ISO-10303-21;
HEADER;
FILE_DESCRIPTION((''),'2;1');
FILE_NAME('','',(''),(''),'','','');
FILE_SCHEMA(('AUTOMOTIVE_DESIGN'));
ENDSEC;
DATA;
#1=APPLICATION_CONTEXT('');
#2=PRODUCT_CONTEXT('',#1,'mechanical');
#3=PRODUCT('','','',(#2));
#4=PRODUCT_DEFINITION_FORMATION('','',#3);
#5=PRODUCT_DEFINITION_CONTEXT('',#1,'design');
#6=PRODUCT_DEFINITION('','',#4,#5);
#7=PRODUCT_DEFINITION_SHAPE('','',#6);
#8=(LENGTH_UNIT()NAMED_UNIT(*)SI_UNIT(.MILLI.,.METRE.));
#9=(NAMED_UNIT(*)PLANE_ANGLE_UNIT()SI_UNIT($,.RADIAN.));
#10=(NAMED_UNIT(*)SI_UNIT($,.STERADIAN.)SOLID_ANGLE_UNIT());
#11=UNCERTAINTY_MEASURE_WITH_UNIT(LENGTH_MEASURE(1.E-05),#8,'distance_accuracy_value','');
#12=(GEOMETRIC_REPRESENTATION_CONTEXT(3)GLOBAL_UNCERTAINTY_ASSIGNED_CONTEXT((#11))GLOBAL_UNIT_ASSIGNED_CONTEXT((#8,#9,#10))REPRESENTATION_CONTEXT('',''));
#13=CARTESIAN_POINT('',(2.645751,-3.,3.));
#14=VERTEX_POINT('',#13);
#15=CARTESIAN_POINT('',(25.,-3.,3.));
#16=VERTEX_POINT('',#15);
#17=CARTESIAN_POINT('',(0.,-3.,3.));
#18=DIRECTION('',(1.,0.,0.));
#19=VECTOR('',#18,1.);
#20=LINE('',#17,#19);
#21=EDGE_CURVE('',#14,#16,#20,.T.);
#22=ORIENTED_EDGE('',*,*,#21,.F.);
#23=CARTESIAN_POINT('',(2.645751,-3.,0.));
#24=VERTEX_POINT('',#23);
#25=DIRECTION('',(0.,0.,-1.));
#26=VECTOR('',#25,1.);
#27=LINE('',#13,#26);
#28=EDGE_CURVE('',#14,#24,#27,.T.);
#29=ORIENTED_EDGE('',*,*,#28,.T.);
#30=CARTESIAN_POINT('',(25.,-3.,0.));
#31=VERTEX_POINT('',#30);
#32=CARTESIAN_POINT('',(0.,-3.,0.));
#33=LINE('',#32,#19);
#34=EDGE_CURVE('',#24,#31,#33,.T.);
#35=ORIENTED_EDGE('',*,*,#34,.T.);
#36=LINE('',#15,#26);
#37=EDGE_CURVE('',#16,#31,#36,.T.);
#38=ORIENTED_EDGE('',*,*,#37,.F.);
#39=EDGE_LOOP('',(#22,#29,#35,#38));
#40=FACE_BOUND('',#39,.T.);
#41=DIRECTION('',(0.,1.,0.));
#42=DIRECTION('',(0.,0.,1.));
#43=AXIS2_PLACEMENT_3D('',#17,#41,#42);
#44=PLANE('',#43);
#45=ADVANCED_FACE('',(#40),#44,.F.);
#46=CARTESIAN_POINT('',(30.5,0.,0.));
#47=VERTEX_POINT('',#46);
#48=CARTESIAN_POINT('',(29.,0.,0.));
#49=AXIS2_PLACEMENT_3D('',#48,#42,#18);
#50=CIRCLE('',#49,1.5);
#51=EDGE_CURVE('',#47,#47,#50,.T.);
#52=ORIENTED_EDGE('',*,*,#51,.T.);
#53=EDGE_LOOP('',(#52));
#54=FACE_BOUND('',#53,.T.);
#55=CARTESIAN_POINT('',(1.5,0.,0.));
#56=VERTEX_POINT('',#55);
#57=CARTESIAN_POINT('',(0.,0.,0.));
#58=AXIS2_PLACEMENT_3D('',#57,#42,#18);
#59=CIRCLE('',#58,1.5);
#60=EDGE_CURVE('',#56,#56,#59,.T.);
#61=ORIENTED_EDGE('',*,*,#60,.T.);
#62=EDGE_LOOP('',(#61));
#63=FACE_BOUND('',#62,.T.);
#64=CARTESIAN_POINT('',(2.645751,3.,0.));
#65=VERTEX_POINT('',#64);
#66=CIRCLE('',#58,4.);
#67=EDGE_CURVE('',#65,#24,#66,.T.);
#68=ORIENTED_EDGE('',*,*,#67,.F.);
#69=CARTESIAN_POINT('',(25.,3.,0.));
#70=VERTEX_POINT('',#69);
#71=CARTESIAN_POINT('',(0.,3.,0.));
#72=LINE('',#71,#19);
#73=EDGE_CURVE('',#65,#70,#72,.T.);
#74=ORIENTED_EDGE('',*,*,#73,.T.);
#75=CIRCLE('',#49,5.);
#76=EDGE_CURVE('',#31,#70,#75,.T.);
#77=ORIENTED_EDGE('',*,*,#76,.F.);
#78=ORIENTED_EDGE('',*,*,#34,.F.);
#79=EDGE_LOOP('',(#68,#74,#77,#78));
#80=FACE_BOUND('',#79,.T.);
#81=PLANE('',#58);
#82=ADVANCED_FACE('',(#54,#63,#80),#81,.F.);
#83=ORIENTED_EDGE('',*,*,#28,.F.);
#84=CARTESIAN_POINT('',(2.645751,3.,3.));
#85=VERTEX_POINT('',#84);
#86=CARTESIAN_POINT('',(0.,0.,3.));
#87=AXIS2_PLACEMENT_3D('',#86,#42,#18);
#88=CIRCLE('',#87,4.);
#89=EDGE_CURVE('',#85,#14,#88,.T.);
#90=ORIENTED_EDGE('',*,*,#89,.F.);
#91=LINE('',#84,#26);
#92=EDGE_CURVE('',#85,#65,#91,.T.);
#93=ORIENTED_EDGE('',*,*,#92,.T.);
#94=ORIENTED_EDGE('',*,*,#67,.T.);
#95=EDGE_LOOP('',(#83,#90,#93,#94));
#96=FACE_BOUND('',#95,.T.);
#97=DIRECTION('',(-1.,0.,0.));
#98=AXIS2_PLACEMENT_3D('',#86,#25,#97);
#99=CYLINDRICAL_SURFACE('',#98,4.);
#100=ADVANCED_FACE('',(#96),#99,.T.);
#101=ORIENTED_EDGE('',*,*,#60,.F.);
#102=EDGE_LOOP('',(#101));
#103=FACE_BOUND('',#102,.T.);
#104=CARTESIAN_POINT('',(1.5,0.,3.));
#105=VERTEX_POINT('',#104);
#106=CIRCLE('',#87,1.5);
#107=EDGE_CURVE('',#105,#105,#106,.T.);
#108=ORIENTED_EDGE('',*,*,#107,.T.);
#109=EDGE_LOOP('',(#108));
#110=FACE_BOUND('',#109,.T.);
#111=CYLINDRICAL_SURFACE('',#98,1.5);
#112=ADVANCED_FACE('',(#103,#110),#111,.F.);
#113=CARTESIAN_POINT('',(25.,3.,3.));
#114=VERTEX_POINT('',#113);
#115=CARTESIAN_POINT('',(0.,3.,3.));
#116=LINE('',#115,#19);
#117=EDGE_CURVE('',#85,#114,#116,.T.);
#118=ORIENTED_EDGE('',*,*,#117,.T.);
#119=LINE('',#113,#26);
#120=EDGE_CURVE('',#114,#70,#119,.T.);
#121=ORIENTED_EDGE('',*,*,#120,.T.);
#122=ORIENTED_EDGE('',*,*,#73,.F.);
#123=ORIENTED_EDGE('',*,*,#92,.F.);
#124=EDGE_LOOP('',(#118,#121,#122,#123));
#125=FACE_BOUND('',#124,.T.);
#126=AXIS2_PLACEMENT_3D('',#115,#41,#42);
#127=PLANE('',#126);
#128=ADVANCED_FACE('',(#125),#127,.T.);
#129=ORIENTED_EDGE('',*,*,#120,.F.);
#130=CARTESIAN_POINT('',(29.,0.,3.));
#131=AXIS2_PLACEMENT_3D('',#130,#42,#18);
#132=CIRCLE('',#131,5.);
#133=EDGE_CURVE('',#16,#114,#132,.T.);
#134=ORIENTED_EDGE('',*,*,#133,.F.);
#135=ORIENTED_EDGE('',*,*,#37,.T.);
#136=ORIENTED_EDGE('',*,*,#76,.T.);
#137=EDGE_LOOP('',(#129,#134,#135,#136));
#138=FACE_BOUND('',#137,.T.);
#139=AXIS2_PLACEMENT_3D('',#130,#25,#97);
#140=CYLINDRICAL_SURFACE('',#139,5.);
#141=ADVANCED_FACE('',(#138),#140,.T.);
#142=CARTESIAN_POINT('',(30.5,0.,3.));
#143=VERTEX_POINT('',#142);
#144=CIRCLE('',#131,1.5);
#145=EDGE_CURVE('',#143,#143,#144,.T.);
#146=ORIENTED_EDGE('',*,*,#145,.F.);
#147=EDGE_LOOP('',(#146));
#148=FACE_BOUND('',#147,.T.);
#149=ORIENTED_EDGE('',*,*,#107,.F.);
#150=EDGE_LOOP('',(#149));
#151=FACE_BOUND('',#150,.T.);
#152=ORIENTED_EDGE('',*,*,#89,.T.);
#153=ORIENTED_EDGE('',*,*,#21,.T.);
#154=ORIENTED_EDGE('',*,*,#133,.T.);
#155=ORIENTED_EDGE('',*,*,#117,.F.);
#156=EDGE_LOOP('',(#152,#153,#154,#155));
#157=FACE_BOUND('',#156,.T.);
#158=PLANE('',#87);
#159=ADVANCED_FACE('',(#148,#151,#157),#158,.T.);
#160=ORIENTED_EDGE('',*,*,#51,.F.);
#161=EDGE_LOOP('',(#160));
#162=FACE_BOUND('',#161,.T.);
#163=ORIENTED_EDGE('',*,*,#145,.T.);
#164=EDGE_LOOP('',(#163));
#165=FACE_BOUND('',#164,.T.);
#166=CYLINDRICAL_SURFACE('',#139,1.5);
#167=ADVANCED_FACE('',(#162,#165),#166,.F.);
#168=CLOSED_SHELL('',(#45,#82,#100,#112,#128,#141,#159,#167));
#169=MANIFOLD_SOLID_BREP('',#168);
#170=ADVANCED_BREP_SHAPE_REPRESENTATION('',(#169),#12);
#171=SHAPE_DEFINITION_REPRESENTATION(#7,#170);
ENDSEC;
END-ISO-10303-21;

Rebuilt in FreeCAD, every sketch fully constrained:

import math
import FreeCAD as App
import Part
import Sketcher

V = App.Vector

doc = App.newDocument("Part")
body = doc.addObject("PartDesign::Body", "Body")

# Sketch on XY plane
sketch1 = doc.addObject("Sketcher::SketchObject", "Sketch")
body.addObject(sketch1)
sketch1.AttachmentSupport = (doc.XY_Plane, [""])
sketch1.MapMode = "FlatFace"
sketch1.addGeometry(Part.ArcOfCircle(Part.Circle(V(0, 0, 0), V(0, 0, 1), 4), math.radians(49), math.radians(311)), False)
sketch1.addGeometry(Part.LineSegment(V(2.6, -3, 0), V(25, -3, 0)), False)
sketch1.addGeometry(Part.ArcOfCircle(Part.Circle(V(29, 0, 0), V(0, 0, 1), 5), math.radians(-143), math.radians(143)), False)
sketch1.addGeometry(Part.LineSegment(V(25, 3, 0), V(2.6, 3, 0)), False)
sketch1.addGeometry(Part.Circle(V(0, 0, 0), V(0, 0, 1), 1.5), False)
sketch1.addGeometry(Part.Circle(V(29, 0, 0), V(0, 0, 1), 1.5), False)
sketch1.addConstraint(Sketcher.Constraint("Coincident", 0, 2, 1, 1))
sketch1.addConstraint(Sketcher.Constraint("Coincident", 1, 2, 2, 1))
sketch1.addConstraint(Sketcher.Constraint("Coincident", 2, 2, 3, 1))
sketch1.addConstraint(Sketcher.Constraint("Coincident", 3, 2, 0, 1))
sketch1.addConstraint(Sketcher.Constraint("Horizontal", 1))
sketch1.addConstraint(Sketcher.Constraint("Horizontal", 3))
sketch1.addConstraint(Sketcher.Constraint("Coincident", 0, 3, -1, 1))
sketch1.addConstraint(Sketcher.Constraint("Coincident", 4, 3, -1, 1))
sketch1.addConstraint(Sketcher.Constraint("Coincident", 5, 3, 2, 3))
sketch1.addConstraint(Sketcher.Constraint("Equal", 4, 5))
sketch1.addConstraint(Sketcher.Constraint("Symmetric", 1, 2, 2, 2, -1))
sketch1.addConstraint(Sketcher.Constraint("Diameter", 4, 3.0))
sketch1.addConstraint(Sketcher.Constraint("Radius", 0, 4.0))
sketch1.addConstraint(Sketcher.Constraint("Radius", 2, 5.0))
sketch1.addConstraint(Sketcher.Constraint("DistanceX", -1, 1, 2, 3, 29.0))
sketch1.addConstraint(Sketcher.Constraint("DistanceY", 0, 2, -1, 1, 3.0))
pad1 = doc.addObject("PartDesign::Pad", "Pad")
body.addObject(pad1)
pad1.Profile = sketch1
pad1.Length = 3

doc.recompute()
